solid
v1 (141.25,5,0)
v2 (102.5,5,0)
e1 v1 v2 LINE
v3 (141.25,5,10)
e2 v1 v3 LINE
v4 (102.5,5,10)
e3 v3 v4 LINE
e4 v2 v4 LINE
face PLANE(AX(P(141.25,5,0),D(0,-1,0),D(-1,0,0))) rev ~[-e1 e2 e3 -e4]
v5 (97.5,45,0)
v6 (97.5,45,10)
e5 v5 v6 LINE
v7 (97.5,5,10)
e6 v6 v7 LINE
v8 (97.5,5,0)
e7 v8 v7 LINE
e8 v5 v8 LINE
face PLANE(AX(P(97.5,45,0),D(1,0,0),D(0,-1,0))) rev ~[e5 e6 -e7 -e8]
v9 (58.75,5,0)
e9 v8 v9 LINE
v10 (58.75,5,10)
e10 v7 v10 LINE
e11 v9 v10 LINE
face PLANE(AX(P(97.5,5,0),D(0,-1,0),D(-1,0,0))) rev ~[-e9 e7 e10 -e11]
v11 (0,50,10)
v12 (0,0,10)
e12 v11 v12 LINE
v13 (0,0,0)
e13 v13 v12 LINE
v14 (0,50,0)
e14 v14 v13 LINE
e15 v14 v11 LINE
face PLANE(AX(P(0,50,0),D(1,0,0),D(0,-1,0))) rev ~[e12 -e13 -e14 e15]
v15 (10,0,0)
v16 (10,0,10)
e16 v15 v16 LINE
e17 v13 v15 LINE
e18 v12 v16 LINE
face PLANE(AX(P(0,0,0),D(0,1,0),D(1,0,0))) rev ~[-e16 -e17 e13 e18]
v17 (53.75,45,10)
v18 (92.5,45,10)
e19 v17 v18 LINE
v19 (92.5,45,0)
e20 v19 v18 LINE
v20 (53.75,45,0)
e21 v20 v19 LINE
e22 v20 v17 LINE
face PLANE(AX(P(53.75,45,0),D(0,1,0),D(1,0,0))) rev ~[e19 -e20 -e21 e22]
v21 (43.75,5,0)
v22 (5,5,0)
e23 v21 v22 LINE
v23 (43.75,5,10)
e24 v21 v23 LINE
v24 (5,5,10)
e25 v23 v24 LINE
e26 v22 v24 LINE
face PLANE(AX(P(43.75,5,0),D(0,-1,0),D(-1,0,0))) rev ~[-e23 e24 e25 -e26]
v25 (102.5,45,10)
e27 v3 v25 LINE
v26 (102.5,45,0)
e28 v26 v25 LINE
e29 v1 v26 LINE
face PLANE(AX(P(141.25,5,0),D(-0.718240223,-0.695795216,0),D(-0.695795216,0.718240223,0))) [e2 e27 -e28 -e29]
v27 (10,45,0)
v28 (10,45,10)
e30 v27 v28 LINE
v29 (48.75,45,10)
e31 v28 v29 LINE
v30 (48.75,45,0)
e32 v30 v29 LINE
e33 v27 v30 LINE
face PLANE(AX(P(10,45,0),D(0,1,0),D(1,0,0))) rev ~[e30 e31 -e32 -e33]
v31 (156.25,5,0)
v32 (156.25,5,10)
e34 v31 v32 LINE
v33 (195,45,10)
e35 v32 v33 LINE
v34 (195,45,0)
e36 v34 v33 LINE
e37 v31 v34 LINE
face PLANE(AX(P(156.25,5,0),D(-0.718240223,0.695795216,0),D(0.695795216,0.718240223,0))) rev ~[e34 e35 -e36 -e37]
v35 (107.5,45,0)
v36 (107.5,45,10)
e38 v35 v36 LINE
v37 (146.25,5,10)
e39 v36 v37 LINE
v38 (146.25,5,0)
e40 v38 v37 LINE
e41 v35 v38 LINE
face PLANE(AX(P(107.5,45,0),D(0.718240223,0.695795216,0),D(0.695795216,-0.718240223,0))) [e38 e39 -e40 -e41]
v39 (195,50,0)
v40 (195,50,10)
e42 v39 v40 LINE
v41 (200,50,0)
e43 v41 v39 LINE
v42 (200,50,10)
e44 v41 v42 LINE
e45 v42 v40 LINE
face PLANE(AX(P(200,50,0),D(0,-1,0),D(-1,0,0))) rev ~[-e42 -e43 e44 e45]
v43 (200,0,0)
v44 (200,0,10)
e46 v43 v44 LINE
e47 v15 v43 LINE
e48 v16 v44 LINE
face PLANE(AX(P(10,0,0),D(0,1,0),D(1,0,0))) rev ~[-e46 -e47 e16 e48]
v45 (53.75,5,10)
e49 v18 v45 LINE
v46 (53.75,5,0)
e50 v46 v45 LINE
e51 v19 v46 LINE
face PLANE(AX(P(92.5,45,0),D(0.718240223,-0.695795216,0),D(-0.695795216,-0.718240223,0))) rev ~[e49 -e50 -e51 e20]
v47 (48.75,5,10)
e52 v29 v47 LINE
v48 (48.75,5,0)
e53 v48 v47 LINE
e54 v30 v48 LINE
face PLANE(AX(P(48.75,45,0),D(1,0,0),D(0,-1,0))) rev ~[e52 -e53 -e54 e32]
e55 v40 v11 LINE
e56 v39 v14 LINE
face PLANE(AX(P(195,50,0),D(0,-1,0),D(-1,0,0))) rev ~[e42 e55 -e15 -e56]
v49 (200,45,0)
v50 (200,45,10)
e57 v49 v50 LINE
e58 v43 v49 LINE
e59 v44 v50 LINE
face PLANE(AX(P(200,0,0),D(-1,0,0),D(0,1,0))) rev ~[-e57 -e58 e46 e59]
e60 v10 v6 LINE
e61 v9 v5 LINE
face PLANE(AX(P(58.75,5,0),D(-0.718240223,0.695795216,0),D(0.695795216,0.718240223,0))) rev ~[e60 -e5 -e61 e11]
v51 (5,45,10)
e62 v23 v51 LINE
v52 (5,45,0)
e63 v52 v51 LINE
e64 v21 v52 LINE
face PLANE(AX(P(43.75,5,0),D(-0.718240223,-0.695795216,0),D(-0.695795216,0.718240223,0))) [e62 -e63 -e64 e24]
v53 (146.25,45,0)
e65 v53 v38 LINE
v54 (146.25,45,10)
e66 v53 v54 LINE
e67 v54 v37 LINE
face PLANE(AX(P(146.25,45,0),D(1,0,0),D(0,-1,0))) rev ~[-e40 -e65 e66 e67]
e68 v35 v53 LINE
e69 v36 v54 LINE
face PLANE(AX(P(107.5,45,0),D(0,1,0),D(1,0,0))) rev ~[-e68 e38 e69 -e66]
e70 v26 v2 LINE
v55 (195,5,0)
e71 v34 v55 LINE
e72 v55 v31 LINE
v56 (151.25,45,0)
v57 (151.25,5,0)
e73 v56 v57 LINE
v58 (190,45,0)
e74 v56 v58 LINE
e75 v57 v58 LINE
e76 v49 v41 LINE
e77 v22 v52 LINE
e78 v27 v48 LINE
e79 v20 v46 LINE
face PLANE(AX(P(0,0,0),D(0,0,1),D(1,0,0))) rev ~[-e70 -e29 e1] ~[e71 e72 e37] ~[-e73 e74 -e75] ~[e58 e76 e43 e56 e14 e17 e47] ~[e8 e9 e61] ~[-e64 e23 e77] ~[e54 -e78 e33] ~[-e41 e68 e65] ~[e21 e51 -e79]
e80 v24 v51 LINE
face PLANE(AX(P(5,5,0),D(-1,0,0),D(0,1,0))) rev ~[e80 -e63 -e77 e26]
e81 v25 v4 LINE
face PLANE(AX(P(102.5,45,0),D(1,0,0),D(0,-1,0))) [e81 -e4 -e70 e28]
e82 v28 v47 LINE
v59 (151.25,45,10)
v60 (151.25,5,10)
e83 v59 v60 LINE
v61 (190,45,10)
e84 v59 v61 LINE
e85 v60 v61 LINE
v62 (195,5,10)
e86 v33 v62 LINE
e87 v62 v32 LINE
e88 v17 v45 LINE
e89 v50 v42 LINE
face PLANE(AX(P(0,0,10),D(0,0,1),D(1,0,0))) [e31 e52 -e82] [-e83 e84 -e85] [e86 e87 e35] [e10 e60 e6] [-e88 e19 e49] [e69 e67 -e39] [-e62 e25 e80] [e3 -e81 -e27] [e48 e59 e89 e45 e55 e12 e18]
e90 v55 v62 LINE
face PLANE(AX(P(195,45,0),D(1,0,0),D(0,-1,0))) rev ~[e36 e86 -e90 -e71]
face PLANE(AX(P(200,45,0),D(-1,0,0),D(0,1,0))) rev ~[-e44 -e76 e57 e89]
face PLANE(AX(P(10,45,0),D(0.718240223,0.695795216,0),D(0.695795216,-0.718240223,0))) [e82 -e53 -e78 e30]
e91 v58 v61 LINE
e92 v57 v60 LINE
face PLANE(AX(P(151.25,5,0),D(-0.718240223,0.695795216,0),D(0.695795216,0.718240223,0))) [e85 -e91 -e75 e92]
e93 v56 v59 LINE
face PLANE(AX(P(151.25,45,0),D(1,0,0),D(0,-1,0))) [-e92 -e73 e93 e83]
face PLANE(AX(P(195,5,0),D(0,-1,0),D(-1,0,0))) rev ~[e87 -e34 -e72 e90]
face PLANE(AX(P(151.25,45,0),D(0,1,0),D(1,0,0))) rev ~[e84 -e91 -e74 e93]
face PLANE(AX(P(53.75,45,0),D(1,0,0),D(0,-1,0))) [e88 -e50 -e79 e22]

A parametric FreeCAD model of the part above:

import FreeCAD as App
import Part
import Sketcher
Q = App.Units.Quantity


def add_polygon(sketch, points):
    """Adds a closed chain of lines whose ends are joined by coincident constraints."""
    first, n = sketch.GeometryCount, len(points)
    for a, b in zip(points, points[1:] + points[:1]):
        sketch.addGeometry(Part.LineSegment(App.Vector(*a, 0), App.Vector(*b, 0)), False)
    for i in range(n):
        sketch.addConstraint(Sketcher.Constraint("Coincident", first + i, 2, first + (i + 1) % n, 1))

doc = App.newDocument("Part")
body = doc.addObject("PartDesign::Body", "Body")

# Sketch on XY plane
sketch1 = body.newObject("Sketcher::SketchObject", "Sketch")
sketch1.AttachmentSupport = (doc.getObject("XY_Plane"), [""])
sketch1.MapMode = "FlatFace"
add_polygon(sketch1, [(0, 50), (0, 0), (200, 0), (200, 50)])  # lines 0-3
add_polygon(sketch1, [(44, 5), (5, 5), (5, 45)])  # lines 4-6
add_polygon(sketch1, [(10, 45), (49, 45), (49, 5)])  # lines 7-9
add_polygon(sketch1, [(54, 5), (54, 45), (92, 45)])  # lines 10-12
add_polygon(sketch1, [(59, 5), (98, 45), (98, 5)])  # lines 13-15
add_polygon(sketch1, [(102, 5), (102, 45), (141, 5)])  # lines 16-18
add_polygon(sketch1, [(108, 45), (146, 45), (146, 5)])  # lines 19-21
add_polygon(sketch1, [(151, 5), (151, 45), (190, 45)])  # lines 22-24
add_polygon(sketch1, [(156, 5), (195, 45), (195, 5)])  # lines 25-27
sketch1.addConstraint(Sketcher.Constraint("Vertical", 0))
sketch1.addConstraint(Sketcher.Constraint("Horizontal", 1))
sketch1.addConstraint(Sketcher.Constraint("Vertical", 2))
sketch1.addConstraint(Sketcher.Constraint("Horizontal", 3))
sketch1.addConstraint(Sketcher.Constraint("Horizontal", 4))
sketch1.addConstraint(Sketcher.Constraint("Vertical", 5))
sketch1.addConstraint(Sketcher.Constraint("Horizontal", 7))
sketch1.addConstraint(Sketcher.Constraint("Vertical", 8))
sketch1.addConstraint(Sketcher.Constraint("Vertical", 10))
sketch1.addConstraint(Sketcher.Constraint("Horizontal", 11))
sketch1.addConstraint(Sketcher.Constraint("Vertical", 14))
sketch1.addConstraint(Sketcher.Constraint("Horizontal", 15))
sketch1.addConstraint(Sketcher.Constraint("Vertical", 16))
sketch1.addConstraint(Sketcher.Constraint("Horizontal", 18))
sketch1.addConstraint(Sketcher.Constraint("Horizontal", 19))
sketch1.addConstraint(Sketcher.Constraint("Vertical", 20))
sketch1.addConstraint(Sketcher.Constraint("Vertical", 22))
sketch1.addConstraint(Sketcher.Constraint("Horizontal", 23))
sketch1.addConstraint(Sketcher.Constraint("Vertical", 26))
sketch1.addConstraint(Sketcher.Constraint("Horizontal", 27))
sketch1.addConstraint(Sketcher.Constraint("Coincident", 0, 2, -1, 1))
sketch1.addConstraint(Sketcher.Constraint("Parallel", 6, 9))
sketch1.addConstraint(Sketcher.Constraint("Parallel", 12, 13))
sketch1.addConstraint(Sketcher.Constraint("Parallel", 9, 17))
sketch1.addConstraint(Sketcher.Constraint("Parallel", 17, 21))
sketch1.addConstraint(Sketcher.Constraint("Parallel", 13, 24))
sketch1.addConstraint(Sketcher.Constraint("Parallel", 24, 25))
sketch1.addConstraint(Sketcher.Constraint("Horizontal", 5, 2, 7, 2))
sketch1.addConstraint(Sketcher.Constraint("Horizontal", 6, 2, 8, 2))
sketch1.addConstraint(Sketcher.Constraint("Horizontal", 9, 2, 10, 2))
sketch1.addConstraint(Sketcher.Constraint("Horizontal", 8, 2, 12, 2))
sketch1.addConstraint(Sketcher.Constraint("Horizontal", 11, 2, 13, 2))
sketch1.addConstraint(Sketcher.Constraint("Horizontal", 12, 2, 14, 2))
sketch1.addConstraint(Sketcher.Constraint("Horizontal", 13, 2, 16, 2))
sketch1.addConstraint(Sketcher.Constraint("Horizontal", 15, 2, 17, 2))
sketch1.addConstraint(Sketcher.Constraint("Horizontal", 16, 2, 19, 2))
sketch1.addConstraint(Sketcher.Constraint("Horizontal", 18, 2, 20, 2))
sketch1.addConstraint(Sketcher.Constraint("Horizontal", 21, 2, 22, 2))
sketch1.addConstraint(Sketcher.Constraint("Horizontal", 20, 2, 24, 2))
sketch1.addConstraint(Sketcher.Constraint("Horizontal", 23, 2, 25, 2))
sketch1.addConstraint(Sketcher.Constraint("Horizontal", 24, 2, 26, 2))
sketch1.addConstraint(Sketcher.Constraint("Equal", 7, 11))
sketch1.addConstraint(Sketcher.Constraint("DistanceY", 0, 2, 0, 1, Q("50 mm")))
sketch1.addConstraint(Sketcher.Constraint("DistanceX", 1, 1, 1, 2, Q("200 mm")))
sketch1.addConstraint(Sketcher.Constraint("DistanceY", 5, 1, 5, 2, Q("40 mm")))
sketch1.addConstraint(Sketcher.Constraint("DistanceX", -1, 1, 4, 2, Q("5 mm")))
sketch1.addConstraint(Sketcher.Constraint("DistanceY", -1, 1, 4, 2, Q("5 mm")))
sketch1.addConstraint(Sketcher.Constraint("DistanceX", -1, 1, 9, 2, Q("10 mm")))
sketch1.addConstraint(Sketcher.Constraint("DistanceX", -1, 1, 23, 2, Q("190 mm")))
sketch1.addConstraint(Sketcher.Constraint("DistanceX", -1, 1, 25, 2, Q("195 mm")))
sketch1.addConstraint(Sketcher.Constraint("DistanceX", 7, 2, 10, 2, Q("5 mm")))
sketch1.addConstraint(Sketcher.Constraint("DistanceX", 11, 2, 13, 2, Q("5 mm")))
sketch1.addConstraint(Sketcher.Constraint("DistanceX", 13, 2, 16, 2, Q("5 mm")))
sketch1.addConstraint(Sketcher.Constraint("DistanceX", 17, 2, 19, 2, Q("5 mm")))
sketch1.addConstraint(Sketcher.Constraint("DistanceX", 19, 2, 22, 2, Q("5 mm")))
pad1 = body.newObject("PartDesign::Pad", "Pad")
pad1.Profile = sketch1
pad1.Length = 10

doc.recompute()
